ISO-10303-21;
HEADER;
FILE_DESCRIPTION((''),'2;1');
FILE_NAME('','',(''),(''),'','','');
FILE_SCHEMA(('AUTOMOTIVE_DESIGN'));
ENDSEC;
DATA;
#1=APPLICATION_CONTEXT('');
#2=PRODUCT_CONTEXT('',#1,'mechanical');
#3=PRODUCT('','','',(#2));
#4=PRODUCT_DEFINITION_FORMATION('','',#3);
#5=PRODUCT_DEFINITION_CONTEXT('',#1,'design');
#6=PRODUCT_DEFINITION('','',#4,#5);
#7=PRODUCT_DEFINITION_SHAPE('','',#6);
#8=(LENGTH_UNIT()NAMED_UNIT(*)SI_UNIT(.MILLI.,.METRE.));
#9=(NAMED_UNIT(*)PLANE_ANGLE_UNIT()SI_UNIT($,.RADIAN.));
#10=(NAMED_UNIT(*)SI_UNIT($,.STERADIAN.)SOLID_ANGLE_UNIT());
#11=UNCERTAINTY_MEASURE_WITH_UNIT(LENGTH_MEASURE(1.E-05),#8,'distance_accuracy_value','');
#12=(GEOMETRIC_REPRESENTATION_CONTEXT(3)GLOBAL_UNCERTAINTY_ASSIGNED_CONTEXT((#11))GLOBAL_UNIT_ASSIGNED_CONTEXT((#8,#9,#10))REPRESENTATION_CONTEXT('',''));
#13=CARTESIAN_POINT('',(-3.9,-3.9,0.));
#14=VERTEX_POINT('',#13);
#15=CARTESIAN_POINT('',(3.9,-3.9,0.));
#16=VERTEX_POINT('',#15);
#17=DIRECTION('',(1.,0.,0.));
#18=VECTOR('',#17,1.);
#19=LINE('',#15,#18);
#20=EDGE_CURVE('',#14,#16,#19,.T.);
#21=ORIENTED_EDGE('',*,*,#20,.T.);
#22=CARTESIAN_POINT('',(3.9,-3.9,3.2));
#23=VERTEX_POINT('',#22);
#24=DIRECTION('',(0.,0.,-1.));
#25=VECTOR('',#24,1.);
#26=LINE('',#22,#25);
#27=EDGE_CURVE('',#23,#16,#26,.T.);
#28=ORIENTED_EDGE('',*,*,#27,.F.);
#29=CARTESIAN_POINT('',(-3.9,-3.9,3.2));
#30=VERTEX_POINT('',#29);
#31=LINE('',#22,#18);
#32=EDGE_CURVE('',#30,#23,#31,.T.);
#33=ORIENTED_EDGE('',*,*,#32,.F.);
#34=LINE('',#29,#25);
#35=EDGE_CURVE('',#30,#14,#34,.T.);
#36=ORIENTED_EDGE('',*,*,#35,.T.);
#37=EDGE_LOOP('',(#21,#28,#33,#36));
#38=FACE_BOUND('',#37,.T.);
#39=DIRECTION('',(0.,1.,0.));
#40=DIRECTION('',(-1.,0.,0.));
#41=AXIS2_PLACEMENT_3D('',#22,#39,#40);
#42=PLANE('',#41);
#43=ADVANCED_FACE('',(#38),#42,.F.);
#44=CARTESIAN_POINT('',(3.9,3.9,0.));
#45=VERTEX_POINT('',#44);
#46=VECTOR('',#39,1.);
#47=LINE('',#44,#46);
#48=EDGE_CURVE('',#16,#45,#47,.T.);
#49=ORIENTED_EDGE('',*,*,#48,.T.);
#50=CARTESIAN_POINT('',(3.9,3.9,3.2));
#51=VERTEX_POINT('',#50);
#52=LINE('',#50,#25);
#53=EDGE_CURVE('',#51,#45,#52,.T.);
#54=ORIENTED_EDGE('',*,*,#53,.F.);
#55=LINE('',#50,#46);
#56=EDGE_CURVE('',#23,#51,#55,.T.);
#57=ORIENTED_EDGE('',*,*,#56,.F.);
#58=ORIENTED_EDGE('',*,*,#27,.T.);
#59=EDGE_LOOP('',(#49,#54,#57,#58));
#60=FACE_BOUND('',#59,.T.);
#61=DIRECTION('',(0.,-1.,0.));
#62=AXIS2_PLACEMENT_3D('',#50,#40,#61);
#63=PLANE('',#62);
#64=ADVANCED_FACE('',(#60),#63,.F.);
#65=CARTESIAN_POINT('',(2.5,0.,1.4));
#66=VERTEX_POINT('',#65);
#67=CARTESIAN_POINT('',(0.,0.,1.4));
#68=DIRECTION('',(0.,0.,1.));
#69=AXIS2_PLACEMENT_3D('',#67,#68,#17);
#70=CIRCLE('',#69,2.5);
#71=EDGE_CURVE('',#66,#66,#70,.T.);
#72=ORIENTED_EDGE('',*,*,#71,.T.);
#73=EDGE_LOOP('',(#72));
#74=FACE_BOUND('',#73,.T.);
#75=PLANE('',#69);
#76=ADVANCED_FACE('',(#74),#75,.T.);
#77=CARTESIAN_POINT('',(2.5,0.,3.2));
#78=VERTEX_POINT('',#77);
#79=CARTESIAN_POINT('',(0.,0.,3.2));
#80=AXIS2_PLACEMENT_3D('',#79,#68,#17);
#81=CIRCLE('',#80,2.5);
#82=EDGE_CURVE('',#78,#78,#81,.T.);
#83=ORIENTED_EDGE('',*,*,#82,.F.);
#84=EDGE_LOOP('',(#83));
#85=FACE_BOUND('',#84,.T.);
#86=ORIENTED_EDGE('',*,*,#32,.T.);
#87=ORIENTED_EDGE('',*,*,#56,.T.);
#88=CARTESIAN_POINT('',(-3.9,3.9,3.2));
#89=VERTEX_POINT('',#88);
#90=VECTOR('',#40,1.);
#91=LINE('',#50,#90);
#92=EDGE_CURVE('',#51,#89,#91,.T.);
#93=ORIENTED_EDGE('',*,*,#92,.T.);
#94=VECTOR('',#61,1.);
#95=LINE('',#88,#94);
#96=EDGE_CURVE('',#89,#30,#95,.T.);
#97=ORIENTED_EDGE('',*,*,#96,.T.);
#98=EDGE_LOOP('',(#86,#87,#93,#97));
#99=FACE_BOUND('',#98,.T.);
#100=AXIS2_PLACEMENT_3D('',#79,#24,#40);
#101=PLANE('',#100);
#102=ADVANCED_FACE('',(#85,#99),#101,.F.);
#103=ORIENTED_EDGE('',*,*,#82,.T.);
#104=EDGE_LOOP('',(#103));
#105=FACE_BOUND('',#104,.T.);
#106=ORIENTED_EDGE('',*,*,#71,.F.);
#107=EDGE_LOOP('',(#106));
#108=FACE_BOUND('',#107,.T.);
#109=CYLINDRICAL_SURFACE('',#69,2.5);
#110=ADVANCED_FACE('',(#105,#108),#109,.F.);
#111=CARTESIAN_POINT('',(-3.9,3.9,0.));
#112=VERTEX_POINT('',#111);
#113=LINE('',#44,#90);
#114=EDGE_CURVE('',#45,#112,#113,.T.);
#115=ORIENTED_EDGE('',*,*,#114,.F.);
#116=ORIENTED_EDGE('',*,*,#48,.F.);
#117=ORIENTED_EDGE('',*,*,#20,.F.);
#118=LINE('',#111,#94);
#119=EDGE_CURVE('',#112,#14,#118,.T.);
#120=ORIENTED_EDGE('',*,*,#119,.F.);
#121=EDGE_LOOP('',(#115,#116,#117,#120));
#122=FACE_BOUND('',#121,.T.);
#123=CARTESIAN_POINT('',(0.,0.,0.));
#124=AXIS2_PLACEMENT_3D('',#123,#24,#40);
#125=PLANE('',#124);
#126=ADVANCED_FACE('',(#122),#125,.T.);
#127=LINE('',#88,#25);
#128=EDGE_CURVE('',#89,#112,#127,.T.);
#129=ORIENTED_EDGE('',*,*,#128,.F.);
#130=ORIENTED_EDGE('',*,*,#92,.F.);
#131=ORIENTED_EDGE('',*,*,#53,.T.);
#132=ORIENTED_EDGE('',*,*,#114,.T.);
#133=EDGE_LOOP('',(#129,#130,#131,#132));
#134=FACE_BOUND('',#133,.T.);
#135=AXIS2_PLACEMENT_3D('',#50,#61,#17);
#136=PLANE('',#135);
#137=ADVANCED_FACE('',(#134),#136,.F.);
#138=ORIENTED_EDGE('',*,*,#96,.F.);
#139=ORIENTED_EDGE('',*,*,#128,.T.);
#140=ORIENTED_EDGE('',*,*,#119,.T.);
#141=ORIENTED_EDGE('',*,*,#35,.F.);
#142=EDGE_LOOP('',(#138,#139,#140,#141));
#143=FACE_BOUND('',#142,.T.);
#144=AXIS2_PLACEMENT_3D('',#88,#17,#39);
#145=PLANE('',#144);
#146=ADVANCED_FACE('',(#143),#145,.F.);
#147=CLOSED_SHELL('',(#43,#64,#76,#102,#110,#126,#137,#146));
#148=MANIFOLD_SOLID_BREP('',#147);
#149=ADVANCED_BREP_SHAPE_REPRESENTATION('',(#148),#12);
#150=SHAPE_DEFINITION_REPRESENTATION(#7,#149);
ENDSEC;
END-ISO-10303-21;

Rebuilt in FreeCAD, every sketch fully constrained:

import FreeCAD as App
import Part
import Sketcher

V = App.Vector


def add_polygon(sketch, points):
    """Adds a closed chain of lines whose ends are joined by coincident constraints."""
    first, n = sketch.GeometryCount, len(points)
    for a, b in zip(points, points[1:] + points[:1]):
        sketch.addGeometry(Part.LineSegment(App.Vector(*a, 0), App.Vector(*b, 0)), False)
    for i in range(n):
        sketch.addConstraint(Sketcher.Constraint("Coincident", first + i, 2, first + (i + 1) % n, 1))

doc = App.newDocument("Part")
params = doc.addObject("Spreadsheet::Sheet", "Params")
for row, (alias, value) in enumerate([
    ("sketch1_width", "7.8 mm"),
    ("pad1_length", "3.2 mm"),
    ("sketch2_diameter", "5 mm"),
    ("pocket1_length", "1.8 mm"),
], start=1):
    params.set(f"A{row}", alias)
    params.set(f"B{row}", "=" + value)
    params.setAlias(f"B{row}", alias)

body = doc.addObject("PartDesign::Body", "Body")

sketch1 = body.newObject("Sketcher::SketchObject", "Sketch")
sketch1.AttachmentSupport = (doc.getObject("XY_Plane"), [""])
sketch1.MapMode = "FlatFace"
add_polygon(sketch1, [(-4, 4), (-4, -4), (4, -4), (4, 4)])
sketch1.addConstraint([
    Sketcher.Constraint("Vertical", 0),
    Sketcher.Constraint("Horizontal", 1),
    Sketcher.Constraint("Vertical", 2),
    Sketcher.Constraint("Horizontal", 3),
    Sketcher.Constraint("Symmetric", 0, 2, 2, 2, -1, 1),
    Sketcher.Constraint("Equal", 3, 0),
    Sketcher.Constraint("DistanceX", 1, 1, 1, 2, 7.8),
])
sketch1.setExpression("Constraints[10]", "Params.sketch1_width")
pad1 = body.newObject("PartDesign::Pad", "Pad")
pad1.Profile = sketch1
pad1.setExpression("Length", "Params.pad1_length")

sketch2 = body.newObject("Sketcher::SketchObject", "Sketch001")
sketch2.AttachmentSupport = (doc.getObject("XY_Plane"), [""])
sketch2.MapMode = "FlatFace"
sketch2.AttachmentOffset = App.Placement(V(0, 0, 3.2), App.Rotation())
sketch2.addGeometry(Part.Circle(V(0, 0, 0), V(0, 0, 1), 2.5), False)
sketch2.addConstraint([
    Sketcher.Constraint("Coincident", 0, 3, -1, 1),
    Sketcher.Constraint("Diameter", 0, 5.0),
])
sketch2.setExpression("Constraints[1]", "Params.sketch2_diameter")
pocket1 = body.newObject("PartDesign::Pocket", "Pocket")
pocket1.Profile = sketch2
pocket1.setExpression("Length", "Params.pocket1_length")

doc.recompute()
